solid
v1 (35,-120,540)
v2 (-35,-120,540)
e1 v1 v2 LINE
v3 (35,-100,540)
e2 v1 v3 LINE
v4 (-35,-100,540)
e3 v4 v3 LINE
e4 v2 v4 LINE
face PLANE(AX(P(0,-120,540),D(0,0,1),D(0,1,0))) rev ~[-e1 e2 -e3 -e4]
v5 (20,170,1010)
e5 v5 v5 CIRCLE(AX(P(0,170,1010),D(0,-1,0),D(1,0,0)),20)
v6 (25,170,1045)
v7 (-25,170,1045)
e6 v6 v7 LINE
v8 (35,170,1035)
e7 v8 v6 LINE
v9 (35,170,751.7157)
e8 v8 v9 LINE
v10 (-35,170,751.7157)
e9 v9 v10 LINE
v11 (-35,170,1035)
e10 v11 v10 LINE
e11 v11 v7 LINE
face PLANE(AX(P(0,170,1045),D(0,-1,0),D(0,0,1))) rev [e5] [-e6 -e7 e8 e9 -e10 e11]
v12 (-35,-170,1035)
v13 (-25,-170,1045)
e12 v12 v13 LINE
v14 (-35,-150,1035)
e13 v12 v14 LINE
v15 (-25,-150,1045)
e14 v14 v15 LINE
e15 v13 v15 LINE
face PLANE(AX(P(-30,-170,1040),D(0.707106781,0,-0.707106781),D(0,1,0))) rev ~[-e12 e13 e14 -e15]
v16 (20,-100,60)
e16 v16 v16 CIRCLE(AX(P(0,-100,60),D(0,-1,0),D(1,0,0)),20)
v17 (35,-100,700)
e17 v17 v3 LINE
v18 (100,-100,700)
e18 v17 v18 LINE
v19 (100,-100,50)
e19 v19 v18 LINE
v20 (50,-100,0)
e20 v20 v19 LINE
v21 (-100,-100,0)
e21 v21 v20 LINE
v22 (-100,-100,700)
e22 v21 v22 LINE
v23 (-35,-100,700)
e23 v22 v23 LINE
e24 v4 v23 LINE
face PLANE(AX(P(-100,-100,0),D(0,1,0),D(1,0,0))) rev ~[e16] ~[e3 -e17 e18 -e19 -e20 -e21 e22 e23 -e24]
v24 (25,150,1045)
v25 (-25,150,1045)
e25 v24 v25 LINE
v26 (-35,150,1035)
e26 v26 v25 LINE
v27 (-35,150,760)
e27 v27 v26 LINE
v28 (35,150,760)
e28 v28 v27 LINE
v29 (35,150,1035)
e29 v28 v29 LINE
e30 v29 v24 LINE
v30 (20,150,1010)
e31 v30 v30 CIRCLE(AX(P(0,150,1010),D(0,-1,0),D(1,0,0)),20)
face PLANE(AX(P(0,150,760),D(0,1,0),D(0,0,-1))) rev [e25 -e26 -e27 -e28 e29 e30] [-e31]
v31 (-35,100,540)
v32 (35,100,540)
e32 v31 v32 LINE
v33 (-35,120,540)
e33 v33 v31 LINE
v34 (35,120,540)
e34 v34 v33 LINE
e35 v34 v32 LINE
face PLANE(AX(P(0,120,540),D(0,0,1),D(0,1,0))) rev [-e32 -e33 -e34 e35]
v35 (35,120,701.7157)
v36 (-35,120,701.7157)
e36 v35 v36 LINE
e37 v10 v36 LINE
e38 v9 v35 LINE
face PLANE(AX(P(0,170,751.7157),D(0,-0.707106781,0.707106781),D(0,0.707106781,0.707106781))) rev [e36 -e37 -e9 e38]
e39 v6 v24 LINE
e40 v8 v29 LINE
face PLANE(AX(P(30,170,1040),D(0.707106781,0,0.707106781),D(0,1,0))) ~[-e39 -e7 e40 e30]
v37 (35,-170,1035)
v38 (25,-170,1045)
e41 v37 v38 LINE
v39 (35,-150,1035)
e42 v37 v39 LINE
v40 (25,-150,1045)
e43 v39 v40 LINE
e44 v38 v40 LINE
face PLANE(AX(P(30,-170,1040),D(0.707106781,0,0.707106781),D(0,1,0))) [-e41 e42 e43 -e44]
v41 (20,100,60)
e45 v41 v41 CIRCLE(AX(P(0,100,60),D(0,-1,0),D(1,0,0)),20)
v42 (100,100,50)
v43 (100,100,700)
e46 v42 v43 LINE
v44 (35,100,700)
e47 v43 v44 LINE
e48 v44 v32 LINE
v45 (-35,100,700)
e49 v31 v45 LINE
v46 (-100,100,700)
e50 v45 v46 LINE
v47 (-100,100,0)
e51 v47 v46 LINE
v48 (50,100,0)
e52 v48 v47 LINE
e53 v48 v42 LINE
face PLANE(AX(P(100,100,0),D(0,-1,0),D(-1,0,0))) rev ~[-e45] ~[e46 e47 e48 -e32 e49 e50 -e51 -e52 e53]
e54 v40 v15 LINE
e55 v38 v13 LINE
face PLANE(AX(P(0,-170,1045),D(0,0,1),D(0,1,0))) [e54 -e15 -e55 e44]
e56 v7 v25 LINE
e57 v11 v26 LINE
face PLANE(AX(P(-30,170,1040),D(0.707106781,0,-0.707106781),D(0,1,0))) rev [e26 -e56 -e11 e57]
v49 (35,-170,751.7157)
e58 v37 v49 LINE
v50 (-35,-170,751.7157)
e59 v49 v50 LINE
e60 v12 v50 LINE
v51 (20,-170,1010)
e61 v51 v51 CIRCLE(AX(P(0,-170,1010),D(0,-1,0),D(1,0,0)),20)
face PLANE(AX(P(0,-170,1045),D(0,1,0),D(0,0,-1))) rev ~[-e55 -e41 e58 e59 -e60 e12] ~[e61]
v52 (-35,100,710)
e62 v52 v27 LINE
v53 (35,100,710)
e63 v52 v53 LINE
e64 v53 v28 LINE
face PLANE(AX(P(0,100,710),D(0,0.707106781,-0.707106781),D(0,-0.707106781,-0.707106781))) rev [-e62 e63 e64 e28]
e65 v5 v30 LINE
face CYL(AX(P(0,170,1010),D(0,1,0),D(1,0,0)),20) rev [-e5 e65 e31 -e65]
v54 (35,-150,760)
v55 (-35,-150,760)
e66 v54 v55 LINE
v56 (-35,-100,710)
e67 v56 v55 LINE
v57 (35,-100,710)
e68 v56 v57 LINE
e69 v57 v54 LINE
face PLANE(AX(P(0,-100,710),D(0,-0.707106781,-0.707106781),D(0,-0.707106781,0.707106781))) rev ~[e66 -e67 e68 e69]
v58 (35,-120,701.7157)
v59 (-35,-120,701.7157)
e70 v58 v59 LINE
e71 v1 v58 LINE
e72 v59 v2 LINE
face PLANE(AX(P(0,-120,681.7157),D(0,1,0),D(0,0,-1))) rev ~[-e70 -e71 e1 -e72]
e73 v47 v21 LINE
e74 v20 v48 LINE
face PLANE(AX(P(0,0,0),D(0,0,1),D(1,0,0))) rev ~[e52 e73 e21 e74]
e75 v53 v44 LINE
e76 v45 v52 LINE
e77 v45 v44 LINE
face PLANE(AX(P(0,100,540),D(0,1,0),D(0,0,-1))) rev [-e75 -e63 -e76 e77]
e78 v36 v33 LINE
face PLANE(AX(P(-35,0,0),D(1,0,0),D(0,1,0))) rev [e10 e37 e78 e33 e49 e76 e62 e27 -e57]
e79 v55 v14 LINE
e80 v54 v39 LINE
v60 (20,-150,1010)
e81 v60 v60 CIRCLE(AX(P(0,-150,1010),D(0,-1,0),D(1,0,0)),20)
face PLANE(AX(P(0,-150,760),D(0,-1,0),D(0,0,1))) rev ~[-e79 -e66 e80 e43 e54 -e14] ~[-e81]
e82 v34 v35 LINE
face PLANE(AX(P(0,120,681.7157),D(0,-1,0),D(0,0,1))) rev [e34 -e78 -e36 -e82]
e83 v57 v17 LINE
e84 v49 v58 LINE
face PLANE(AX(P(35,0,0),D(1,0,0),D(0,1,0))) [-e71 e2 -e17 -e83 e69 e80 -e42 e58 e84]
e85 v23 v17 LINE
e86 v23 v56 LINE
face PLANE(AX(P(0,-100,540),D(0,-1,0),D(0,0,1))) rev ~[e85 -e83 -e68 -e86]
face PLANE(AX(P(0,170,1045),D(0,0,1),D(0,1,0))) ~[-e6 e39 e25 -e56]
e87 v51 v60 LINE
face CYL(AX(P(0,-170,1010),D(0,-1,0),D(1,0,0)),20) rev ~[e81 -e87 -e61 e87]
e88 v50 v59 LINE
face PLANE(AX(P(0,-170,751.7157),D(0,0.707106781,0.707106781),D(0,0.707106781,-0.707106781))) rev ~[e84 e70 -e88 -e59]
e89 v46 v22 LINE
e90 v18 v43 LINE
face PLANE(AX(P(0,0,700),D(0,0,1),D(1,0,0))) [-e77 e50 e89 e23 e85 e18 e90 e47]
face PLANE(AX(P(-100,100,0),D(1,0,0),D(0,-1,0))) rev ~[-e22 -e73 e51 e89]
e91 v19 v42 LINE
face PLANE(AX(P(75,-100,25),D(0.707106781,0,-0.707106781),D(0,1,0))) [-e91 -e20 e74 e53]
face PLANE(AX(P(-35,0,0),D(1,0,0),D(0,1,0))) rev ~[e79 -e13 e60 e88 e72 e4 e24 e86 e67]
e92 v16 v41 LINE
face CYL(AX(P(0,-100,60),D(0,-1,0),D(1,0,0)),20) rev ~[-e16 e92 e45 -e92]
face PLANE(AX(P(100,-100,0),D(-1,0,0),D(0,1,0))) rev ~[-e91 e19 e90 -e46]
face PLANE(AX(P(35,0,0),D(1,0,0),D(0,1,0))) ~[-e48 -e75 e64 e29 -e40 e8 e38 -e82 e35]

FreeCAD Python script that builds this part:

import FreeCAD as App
import Part
import Sketcher

V = App.Vector
Q = App.Units.Quantity


def edges_at(feature, points):
    """Names of the edges that pass closest to the given points."""
    edges = feature.Shape.Edges
    near = lambda p: min(range(len(edges)), key=lambda i: edges[i].distToShape(Part.Vertex(*p))[0])
    return sorted({f"Edge{near(p) + 1}" for p in points})

doc = App.newDocument("Part")
body = doc.addObject("PartDesign::Body", "Body")

sketch1 = body.newObject("Sketcher::SketchObject", "Sketch")
sketch1.AttachmentSupport = (doc.getObject("XY_Plane"), [""])
sketch1.MapMode = "FlatFace"
sketch1.addGeometry(Part.LineSegment(V(-100, 100, 0), V(-100, -100, 0)), False)
sketch1.addGeometry(Part.LineSegment(V(-100, -100, 0), V(100, -100, 0)), False)
sketch1.addGeometry(Part.LineSegment(V(100, -100, 0), V(100, 100, 0)), False)
sketch1.addGeometry(Part.LineSegment(V(100, 100, 0), V(-100, 100, 0)), False)
sketch1.addConstraint(Sketcher.Constraint("Coincident", 0, 2, 1, 1))
sketch1.addConstraint(Sketcher.Constraint("Coincident", 1, 2, 2, 1))
sketch1.addConstraint(Sketcher.Constraint("Coincident", 2, 2, 3, 1))
sketch1.addConstraint(Sketcher.Constraint("Coincident", 3, 2, 0, 1))
sketch1.addConstraint(Sketcher.Constraint("Vertical", 0))
sketch1.addConstraint(Sketcher.Constraint("Horizontal", 1))
sketch1.addConstraint(Sketcher.Constraint("Vertical", 2))
sketch1.addConstraint(Sketcher.Constraint("Horizontal", 3))
sketch1.addConstraint(Sketcher.Constraint("Symmetric", 0, 2, 2, 2, -1, 1))
sketch1.addConstraint(Sketcher.Constraint("Equal", 3, 0))
sketch1.addConstraint(Sketcher.Constraint("DistanceX", 1, 1, 1, 2, 200.0))
pad1 = body.newObject("PartDesign::Pad", "Pad")
pad1.Profile = sketch1
pad1.Length = 700

sketch2 = body.newObject("Sketcher::SketchObject", "Sketch001")
sketch2.AttachmentSupport = (doc.getObject("YZ_Plane"), [""])
sketch2.MapMode = "FlatFace"
sketch2.addGeometry(Part.LineSegment(V(-120, 540, 0), V(-100, 540, 0)), False)
sketch2.addGeometry(Part.LineSegment(V(-100, 540, 0), V(-100, 710, 0)), False)
sketch2.addGeometry(Part.LineSegment(V(-100, 710, 0), V(-150, 760, 0)), False)
sketch2.addGeometry(Part.LineSegment(V(-150, 760, 0), V(-150, 1045, 0)), False)
sketch2.addGeometry(Part.LineSegment(V(-150, 1045, 0), V(-170, 1045, 0)), False)
sketch2.addGeometry(Part.LineSegment(V(-170, 1045, 0), V(-170, 752, 0)), False)
sketch2.addGeometry(Part.LineSegment(V(-170, 752, 0), V(-120, 702, 0)), False)
sketch2.addGeometry(Part.LineSegment(V(-120, 702, 0), V(-120, 540, 0)), False)
sketch2.addConstraint(Sketcher.Constraint("Coincident", 0, 2, 1, 1))
sketch2.addConstraint(Sketcher.Constraint("Coincident", 1, 2, 2, 1))
sketch2.addConstraint(Sketcher.Constraint("Coincident", 2, 2, 3, 1))
sketch2.addConstraint(Sketcher.Constraint("Coincident", 3, 2, 4, 1))
sketch2.addConstraint(Sketcher.Constraint("Coincident", 4, 2, 5, 1))
sketch2.addConstraint(Sketcher.Constraint("Coincident", 5, 2, 6, 1))
sketch2.addConstraint(Sketcher.Constraint("Coincident", 6, 2, 7, 1))
sketch2.addConstraint(Sketcher.Constraint("Coincident", 7, 2, 0, 1))
sketch2.addConstraint(Sketcher.Constraint("Horizontal", 0))
sketch2.addConstraint(Sketcher.Constraint("Vertical", 1))
sketch2.addConstraint(Sketcher.Constraint("Vertical", 3))
sketch2.addConstraint(Sketcher.Constraint("Horizontal", 4))
sketch2.addConstraint(Sketcher.Constraint("Vertical", 5))
sketch2.addConstraint(Sketcher.Constraint("Vertical", 7))
sketch2.addConstraint(Sketcher.Constraint("Parallel", 2, 6))
sketch2.addConstraint(Sketcher.Constraint("Equal", 0, 4))
sketch2.addConstraint(Sketcher.Constraint("DistanceX", 0, 1, 0, 2, 20.0))
sketch2.addConstraint(Sketcher.Constraint("Angle", 2, Q("135 deg")))
sketch2.addConstraint(Sketcher.Constraint("DistanceX", 2, 2, -1, 1, 150.0))
sketch2.addConstraint(Sketcher.Constraint("DistanceY", 1, 1, 1, 2, 170.0))
sketch2.addConstraint(Sketcher.Constraint("DistanceY", 3, 1, 3, 2, 285.0))
sketch2.addConstraint(Sketcher.Constraint("DistanceX", 0, 2, -1, 1, 100.0))
sketch2.addConstraint(Sketcher.Constraint("DistanceY", -1, 1, 0, 2, 540.0))
sketch2.addConstraint(Sketcher.Constraint("DistanceY", 5, 2, 5, 1, 293.2843))
pad2 = body.newObject("PartDesign::Pad", "Pad001")
pad2.Profile = sketch2
pad2.Length = 70
pad2.Midplane = True

sketch3 = body.newObject("Sketcher::SketchObject", "Sketch002")
sketch3.AttachmentSupport = (doc.getObject("XZ_Plane"), [""])
sketch3.MapMode = "FlatFace"
sketch3.AttachmentOffset = App.Placement(V(0, 0, 170), App.Rotation())
sketch3.addGeometry(Part.Circle(V(0, 1010, 0), V(0, 0, 1), 20), False)
sketch3.addConstraint(Sketcher.Constraint("PointOnObject", 0, 3, -2))
sketch3.addConstraint(Sketcher.Constraint("Diameter", 0, 40.0))
sketch3.addConstraint(Sketcher.Constraint("DistanceY", -1, 1, 0, 3, 1010.0))
pocket1 = body.newObject("PartDesign::Pocket", "Pocket")
pocket1.Profile = sketch3
pocket1.Length = 60
doc.recompute()

chamfer = body.newObject("PartDesign::Chamfer", "Chamfer")
chamfer.Base = (pocket1, edges_at(pocket1, [(35, -160, 1045), (-35, -160, 1045)]))
chamfer.Size = 10
doc.recompute()

mirrored = body.newObject("PartDesign::Mirrored", "Mirrored")
mirrored.TransformMode = "Transform body"
mirrored.MirrorPlane = (doc.getObject("XZ_Plane"), [""])
body.Tip = mirrored

sketch4 = body.newObject("Sketcher::SketchObject", "Sketch003")
sketch4.AttachmentSupport = (doc.getObject("XZ_Plane"), [""])
sketch4.MapMode = "FlatFace"
sketch4.AttachmentOffset = App.Placement(V(0, 0, 100), App.Rotation())
sketch4.addGeometry(Part.Circle(V(0, 60, 0), V(0, 0, 1), 20), False)
sketch4.addConstraint(Sketcher.Constraint("PointOnObject", 0, 3, -2))
sketch4.addConstraint(Sketcher.Constraint("Diameter", 0, 40.0))
sketch4.addConstraint(Sketcher.Constraint("DistanceY", -1, 1, 0, 3, 60.0))
pocket2 = body.newObject("PartDesign::Pocket", "Pocket001")
pocket2.Profile = sketch4
pocket2.Type = "ThroughAll"
doc.recompute()

chamfer2 = body.newObject("PartDesign::Chamfer", "Chamfer001")
chamfer2.Base = (pocket2, edges_at(pocket2, [(100, 0, 0)]))
chamfer2.Size = 50

doc.recompute()
